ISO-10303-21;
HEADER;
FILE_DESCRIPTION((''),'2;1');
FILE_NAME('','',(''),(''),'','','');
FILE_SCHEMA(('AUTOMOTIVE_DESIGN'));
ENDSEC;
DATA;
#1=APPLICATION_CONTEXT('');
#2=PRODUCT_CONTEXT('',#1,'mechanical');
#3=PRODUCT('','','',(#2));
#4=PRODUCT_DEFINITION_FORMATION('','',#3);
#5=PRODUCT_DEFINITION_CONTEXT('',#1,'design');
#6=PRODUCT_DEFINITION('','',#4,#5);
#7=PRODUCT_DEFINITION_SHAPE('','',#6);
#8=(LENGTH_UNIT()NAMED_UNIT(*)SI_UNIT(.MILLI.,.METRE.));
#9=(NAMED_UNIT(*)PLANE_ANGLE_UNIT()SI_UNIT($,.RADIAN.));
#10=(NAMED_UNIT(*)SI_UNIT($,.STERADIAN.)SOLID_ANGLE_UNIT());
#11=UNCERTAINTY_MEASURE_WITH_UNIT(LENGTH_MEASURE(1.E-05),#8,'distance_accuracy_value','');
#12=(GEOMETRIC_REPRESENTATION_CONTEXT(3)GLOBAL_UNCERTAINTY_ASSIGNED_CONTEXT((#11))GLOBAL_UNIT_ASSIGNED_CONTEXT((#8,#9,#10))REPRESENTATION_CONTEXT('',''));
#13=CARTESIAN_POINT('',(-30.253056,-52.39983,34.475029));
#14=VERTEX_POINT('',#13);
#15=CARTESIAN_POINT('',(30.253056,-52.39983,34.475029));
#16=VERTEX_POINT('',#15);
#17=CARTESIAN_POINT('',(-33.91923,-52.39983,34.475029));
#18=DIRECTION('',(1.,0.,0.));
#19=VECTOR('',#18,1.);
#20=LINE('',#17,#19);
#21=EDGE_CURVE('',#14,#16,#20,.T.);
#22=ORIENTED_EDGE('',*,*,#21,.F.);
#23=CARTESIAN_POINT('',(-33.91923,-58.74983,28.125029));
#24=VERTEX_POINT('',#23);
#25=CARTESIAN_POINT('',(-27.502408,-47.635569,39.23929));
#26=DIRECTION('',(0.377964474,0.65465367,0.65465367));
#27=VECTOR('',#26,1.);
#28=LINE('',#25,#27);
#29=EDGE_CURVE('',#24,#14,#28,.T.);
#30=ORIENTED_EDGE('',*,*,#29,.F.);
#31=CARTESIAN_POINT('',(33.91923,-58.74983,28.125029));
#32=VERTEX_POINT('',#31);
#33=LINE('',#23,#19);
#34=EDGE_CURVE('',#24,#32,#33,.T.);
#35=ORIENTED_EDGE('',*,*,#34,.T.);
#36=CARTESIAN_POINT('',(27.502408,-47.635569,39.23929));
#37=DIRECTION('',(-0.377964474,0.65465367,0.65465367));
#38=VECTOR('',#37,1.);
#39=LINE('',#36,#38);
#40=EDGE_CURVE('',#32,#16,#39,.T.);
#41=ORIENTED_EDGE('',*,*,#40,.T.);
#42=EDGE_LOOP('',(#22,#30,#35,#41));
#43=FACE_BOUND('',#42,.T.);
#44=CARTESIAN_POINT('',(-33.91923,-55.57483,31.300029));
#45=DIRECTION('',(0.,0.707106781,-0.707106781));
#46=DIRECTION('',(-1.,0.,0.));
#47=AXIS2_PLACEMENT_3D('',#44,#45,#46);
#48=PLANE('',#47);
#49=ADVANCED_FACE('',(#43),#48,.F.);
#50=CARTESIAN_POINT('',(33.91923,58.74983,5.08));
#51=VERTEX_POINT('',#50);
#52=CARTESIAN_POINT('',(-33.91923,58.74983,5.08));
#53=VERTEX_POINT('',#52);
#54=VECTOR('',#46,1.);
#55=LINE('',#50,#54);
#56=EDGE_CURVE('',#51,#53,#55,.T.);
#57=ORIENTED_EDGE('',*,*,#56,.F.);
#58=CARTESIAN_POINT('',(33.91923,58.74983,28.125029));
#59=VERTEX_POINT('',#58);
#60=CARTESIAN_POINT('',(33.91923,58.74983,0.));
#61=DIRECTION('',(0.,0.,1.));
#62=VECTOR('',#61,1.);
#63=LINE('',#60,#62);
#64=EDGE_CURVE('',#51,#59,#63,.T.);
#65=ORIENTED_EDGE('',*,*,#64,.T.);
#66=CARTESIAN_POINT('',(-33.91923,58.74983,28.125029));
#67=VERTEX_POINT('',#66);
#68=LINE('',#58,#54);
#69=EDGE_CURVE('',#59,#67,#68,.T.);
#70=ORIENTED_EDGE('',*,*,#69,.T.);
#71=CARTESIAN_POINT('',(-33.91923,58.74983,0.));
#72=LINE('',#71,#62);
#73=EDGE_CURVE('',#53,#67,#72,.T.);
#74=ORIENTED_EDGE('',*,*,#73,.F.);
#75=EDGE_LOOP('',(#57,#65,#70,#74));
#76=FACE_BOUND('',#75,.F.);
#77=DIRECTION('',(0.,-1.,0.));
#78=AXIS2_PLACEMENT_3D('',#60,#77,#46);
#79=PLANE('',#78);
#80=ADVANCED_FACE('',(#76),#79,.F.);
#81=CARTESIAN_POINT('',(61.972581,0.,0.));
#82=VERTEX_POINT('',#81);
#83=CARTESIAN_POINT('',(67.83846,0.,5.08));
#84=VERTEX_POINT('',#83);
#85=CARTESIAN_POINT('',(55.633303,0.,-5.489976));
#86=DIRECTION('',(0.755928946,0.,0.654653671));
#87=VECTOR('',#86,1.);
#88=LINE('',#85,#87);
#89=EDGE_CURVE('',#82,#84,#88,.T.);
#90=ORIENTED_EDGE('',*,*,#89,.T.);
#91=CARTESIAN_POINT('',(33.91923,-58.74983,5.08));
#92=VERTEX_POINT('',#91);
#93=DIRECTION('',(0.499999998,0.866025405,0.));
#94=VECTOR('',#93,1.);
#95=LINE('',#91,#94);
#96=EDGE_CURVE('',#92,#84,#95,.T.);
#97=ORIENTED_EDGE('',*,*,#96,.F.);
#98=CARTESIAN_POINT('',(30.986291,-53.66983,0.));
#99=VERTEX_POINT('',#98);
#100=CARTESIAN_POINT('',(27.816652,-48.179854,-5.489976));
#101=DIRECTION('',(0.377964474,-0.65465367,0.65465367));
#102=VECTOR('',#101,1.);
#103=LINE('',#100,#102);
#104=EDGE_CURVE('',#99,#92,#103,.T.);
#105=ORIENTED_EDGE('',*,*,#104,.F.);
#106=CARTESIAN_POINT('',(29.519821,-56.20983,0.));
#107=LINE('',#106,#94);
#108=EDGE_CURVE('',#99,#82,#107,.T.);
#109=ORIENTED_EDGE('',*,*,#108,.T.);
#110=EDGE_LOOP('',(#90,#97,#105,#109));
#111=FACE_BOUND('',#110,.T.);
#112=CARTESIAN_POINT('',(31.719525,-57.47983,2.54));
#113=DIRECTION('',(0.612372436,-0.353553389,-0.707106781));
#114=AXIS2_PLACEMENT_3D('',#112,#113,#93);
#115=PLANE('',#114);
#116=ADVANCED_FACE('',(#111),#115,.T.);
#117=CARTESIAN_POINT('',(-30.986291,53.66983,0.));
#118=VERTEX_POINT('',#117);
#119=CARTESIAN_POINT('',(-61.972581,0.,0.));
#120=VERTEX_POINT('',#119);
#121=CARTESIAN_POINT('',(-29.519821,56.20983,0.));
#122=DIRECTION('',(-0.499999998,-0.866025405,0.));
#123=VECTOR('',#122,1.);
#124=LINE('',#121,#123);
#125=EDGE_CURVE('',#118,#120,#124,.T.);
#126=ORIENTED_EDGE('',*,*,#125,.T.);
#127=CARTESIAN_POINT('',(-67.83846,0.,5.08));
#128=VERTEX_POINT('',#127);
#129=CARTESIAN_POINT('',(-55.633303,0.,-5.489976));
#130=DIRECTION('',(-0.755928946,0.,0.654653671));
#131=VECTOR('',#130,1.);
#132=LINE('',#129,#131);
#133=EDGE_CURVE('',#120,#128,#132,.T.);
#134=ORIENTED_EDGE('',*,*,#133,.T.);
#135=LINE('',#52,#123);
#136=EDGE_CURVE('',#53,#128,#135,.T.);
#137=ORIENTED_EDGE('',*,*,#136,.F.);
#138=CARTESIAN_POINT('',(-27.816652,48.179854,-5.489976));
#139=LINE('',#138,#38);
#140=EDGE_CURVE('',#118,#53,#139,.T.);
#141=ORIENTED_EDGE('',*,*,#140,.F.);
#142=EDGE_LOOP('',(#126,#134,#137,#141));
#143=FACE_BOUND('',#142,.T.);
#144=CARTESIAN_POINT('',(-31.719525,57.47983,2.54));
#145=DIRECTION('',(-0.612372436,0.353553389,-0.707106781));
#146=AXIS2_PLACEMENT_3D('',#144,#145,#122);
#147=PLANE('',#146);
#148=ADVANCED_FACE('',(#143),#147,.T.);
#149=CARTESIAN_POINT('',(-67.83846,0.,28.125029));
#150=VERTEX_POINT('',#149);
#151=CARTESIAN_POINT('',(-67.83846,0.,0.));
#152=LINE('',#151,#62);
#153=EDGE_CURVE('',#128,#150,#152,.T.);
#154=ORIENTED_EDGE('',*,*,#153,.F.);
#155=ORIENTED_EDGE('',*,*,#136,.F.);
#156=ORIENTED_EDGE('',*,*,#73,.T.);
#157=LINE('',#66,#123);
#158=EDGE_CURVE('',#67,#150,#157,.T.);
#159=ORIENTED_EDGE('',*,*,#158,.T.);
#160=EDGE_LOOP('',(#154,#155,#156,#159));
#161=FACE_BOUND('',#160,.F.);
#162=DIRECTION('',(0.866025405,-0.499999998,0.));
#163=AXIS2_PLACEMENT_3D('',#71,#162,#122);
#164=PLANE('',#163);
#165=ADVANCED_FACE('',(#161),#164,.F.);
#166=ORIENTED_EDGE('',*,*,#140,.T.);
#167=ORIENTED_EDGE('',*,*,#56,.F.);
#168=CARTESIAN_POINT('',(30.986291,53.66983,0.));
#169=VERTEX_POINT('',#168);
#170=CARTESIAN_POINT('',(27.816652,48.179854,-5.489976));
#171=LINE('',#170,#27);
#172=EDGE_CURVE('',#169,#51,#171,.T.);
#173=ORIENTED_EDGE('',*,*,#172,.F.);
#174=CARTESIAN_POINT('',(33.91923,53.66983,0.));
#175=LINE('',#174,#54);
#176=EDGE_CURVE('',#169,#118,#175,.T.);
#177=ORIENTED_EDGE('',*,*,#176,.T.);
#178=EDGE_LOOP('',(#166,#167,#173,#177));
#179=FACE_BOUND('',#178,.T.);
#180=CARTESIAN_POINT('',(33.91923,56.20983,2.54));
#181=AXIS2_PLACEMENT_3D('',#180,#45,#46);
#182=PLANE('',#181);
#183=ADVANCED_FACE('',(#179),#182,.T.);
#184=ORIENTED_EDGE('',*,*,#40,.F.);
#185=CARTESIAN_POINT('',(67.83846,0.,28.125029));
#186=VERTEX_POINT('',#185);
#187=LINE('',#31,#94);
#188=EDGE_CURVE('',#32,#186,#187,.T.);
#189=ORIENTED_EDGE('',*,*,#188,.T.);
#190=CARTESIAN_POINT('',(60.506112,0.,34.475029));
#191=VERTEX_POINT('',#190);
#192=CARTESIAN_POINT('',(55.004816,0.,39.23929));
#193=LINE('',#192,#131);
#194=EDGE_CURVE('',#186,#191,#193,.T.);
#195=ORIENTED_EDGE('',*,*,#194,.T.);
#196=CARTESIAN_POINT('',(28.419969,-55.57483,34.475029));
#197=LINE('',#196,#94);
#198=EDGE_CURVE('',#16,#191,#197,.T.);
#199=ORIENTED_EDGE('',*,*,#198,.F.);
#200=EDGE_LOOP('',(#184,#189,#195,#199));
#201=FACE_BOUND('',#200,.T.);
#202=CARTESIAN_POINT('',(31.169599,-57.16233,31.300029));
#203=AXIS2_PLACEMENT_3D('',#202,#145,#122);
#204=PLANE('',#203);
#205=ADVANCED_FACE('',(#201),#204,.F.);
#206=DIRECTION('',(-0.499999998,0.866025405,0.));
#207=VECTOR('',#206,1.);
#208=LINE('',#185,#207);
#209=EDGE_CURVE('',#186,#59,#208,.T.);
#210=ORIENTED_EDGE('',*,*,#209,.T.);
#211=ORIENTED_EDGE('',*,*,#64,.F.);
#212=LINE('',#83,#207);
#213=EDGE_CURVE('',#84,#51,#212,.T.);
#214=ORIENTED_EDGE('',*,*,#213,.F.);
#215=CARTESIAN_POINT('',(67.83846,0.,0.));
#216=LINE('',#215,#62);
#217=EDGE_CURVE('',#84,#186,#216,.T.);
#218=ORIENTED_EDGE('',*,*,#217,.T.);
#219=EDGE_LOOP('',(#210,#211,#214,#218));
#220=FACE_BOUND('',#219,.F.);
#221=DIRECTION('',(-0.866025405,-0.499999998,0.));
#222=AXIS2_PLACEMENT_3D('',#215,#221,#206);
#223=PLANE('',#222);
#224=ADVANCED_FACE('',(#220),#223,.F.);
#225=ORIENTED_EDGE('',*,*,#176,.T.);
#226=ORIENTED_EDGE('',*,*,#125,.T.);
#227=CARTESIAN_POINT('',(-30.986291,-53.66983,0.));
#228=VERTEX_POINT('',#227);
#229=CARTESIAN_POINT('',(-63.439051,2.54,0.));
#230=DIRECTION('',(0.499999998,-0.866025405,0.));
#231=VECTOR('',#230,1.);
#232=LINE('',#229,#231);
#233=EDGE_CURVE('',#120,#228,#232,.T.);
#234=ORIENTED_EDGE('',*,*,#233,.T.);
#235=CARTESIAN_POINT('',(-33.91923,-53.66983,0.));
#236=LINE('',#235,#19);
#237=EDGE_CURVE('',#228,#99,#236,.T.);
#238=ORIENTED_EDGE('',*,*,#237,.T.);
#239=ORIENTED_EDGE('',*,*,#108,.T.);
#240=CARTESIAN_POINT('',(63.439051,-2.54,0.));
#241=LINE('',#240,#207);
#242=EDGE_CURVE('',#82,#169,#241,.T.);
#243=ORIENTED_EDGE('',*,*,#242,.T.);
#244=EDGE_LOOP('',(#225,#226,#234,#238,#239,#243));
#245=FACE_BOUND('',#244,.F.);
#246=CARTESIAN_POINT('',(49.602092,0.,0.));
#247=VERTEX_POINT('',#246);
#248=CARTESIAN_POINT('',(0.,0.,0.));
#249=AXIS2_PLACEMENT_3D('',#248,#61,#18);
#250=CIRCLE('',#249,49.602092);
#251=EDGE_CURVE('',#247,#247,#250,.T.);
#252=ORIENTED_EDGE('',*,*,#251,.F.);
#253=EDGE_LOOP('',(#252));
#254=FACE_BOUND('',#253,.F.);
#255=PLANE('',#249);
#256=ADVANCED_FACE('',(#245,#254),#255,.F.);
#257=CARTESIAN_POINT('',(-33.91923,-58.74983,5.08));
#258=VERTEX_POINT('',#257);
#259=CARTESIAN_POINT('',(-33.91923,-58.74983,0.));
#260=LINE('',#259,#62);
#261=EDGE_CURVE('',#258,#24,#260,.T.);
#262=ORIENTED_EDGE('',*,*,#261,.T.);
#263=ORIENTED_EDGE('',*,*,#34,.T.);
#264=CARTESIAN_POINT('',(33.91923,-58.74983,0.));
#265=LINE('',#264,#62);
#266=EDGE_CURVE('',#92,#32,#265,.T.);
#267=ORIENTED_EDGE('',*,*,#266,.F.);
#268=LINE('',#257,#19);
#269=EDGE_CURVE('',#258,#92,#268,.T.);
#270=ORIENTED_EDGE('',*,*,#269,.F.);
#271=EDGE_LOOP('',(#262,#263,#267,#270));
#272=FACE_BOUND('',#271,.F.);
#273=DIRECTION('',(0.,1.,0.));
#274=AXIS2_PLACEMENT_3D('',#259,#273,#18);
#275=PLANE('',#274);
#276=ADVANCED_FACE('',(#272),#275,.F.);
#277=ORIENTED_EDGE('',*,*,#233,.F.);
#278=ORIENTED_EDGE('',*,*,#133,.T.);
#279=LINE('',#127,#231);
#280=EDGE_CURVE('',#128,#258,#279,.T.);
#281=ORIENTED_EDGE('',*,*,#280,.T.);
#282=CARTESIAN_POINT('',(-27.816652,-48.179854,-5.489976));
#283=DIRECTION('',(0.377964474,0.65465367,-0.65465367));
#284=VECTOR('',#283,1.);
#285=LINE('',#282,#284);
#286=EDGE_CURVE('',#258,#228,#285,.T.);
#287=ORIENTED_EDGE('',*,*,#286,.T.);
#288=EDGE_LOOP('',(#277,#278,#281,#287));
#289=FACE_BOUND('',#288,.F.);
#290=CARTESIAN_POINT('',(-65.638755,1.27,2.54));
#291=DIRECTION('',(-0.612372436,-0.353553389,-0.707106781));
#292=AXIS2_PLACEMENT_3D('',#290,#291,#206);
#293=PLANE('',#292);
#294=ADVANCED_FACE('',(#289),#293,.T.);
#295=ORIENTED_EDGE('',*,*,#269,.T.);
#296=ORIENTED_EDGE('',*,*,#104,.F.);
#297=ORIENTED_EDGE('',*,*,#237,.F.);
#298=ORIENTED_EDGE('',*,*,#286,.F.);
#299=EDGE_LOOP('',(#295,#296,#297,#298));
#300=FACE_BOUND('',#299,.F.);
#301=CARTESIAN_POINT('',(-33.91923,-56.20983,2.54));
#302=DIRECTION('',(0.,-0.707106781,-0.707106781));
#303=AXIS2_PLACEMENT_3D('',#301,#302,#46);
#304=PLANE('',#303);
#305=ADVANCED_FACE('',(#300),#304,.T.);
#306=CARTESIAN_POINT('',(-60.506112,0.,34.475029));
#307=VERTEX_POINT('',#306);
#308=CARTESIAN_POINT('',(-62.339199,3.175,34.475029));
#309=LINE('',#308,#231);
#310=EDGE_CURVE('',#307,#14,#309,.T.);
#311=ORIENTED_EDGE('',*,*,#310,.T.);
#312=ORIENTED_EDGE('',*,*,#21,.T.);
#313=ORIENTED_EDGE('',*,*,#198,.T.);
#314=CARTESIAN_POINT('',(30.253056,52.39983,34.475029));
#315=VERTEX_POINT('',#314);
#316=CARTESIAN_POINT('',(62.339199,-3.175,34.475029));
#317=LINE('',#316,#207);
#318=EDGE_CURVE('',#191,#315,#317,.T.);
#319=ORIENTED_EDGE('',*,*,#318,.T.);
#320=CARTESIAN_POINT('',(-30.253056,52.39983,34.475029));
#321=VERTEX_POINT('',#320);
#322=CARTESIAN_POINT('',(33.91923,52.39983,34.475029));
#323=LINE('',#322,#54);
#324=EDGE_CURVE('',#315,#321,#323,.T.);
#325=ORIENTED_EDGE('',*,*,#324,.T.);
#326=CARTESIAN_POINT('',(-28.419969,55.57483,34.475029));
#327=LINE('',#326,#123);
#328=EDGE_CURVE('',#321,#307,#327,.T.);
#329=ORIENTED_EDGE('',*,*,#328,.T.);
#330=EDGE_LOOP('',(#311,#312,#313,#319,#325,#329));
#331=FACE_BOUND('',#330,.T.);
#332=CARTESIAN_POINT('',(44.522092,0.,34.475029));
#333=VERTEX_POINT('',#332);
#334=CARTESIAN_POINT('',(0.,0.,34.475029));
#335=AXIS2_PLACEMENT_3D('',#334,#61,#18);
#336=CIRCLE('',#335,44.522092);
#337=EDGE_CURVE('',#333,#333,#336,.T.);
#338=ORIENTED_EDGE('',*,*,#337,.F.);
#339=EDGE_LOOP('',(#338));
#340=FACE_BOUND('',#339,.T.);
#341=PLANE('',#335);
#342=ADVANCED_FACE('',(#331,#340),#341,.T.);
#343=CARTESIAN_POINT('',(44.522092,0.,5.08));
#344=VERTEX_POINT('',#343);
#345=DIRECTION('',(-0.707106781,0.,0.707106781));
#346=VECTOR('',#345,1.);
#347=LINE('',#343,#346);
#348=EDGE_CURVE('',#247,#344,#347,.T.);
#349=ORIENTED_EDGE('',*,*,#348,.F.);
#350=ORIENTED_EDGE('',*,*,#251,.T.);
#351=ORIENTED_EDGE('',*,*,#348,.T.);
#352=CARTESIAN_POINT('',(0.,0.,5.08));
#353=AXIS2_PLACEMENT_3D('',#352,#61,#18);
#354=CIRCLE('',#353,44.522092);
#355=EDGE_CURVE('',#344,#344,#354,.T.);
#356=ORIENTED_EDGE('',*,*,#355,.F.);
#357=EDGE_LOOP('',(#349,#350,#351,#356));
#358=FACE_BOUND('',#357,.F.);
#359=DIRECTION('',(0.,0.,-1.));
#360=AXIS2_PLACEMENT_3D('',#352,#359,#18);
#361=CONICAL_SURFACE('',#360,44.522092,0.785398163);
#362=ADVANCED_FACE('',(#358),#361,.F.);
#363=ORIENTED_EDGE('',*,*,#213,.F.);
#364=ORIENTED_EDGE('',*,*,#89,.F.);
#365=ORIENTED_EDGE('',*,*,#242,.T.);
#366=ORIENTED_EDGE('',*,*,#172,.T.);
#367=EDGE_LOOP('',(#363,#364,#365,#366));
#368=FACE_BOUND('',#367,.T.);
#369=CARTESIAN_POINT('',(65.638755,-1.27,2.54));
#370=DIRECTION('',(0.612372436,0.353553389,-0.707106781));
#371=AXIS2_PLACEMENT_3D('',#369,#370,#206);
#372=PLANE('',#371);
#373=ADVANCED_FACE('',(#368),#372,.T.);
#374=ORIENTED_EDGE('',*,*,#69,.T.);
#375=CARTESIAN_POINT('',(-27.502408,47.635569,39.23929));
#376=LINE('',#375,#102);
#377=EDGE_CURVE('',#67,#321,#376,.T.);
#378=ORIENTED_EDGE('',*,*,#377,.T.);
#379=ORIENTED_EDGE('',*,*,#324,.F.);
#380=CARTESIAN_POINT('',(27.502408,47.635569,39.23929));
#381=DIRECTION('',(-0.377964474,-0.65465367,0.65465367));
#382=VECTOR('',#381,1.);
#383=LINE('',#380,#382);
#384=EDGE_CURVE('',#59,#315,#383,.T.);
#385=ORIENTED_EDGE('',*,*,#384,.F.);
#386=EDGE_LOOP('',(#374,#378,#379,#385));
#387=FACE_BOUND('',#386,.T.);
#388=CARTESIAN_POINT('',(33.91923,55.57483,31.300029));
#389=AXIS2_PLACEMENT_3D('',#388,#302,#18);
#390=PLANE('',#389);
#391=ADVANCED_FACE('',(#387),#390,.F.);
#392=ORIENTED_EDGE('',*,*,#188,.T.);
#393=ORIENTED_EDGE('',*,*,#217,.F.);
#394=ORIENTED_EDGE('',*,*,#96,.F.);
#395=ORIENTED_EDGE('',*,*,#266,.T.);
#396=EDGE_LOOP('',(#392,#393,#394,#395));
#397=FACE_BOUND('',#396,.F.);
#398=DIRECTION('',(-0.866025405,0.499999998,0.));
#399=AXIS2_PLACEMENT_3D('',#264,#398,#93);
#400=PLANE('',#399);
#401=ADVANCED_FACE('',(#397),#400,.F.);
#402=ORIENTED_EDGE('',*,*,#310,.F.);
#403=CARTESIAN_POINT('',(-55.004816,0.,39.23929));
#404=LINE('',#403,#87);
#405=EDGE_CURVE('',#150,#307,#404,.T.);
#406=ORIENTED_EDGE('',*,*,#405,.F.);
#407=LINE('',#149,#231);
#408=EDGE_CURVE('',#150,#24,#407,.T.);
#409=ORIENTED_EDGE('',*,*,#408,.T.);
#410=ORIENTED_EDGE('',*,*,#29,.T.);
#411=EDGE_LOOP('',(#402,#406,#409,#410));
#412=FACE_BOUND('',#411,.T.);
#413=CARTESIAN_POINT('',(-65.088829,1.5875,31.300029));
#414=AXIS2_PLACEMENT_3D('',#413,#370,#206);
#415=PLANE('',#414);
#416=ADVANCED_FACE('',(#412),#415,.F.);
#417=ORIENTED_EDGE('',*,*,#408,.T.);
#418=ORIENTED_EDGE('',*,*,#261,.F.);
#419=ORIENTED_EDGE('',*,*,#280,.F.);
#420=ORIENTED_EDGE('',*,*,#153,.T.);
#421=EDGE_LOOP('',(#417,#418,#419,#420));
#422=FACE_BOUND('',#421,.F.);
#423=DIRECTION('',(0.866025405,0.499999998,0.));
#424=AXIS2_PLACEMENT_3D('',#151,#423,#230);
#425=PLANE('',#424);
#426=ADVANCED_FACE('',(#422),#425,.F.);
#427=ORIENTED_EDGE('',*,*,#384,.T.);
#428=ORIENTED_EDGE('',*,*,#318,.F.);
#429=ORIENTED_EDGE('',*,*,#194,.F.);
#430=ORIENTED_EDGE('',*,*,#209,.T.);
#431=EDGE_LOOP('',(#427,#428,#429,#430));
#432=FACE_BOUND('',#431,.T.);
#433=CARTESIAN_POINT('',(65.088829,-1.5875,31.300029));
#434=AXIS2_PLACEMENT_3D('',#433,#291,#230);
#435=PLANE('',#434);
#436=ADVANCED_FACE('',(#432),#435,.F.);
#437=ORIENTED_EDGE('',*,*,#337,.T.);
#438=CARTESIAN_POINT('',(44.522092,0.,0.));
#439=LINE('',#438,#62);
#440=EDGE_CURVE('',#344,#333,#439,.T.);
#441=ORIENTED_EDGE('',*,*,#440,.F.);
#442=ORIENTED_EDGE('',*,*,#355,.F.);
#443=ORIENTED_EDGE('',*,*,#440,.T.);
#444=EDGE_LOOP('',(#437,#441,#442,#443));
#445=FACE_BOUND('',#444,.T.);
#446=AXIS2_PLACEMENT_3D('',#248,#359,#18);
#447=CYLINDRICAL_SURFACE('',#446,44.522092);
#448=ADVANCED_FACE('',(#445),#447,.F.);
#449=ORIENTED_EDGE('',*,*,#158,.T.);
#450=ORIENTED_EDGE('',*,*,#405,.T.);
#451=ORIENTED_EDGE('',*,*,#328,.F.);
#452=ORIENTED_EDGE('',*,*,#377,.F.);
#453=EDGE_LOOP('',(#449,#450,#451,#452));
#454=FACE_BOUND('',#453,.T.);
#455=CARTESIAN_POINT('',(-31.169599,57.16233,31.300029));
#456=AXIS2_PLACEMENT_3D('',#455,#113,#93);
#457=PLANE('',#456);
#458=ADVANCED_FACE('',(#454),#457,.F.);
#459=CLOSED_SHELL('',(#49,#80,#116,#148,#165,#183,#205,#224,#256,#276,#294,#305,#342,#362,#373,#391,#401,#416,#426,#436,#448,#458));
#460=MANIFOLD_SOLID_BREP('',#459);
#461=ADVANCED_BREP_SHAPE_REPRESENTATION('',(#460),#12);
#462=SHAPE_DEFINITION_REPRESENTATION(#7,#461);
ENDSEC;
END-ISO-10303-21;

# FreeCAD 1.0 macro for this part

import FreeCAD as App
import Part
import Sketcher
from FreeCAD import Vector
Q = App.Units.Quantity


def edges_at(feature, points):
    """Names of the edges that pass closest to the given points."""
    edges = feature.Shape.Edges
    near = lambda p: min(range(len(edges)), key=lambda i: edges[i].distToShape(Part.Vertex(*p))[0])
    return sorted({f"Edge{near(p) + 1}" for p in points})

doc = App.newDocument("Part")
body = doc.addObject("PartDesign::Body", "Body")

# Sketch on XY plane
sketch1 = body.newObject("Sketcher::SketchObject", "Sketch")
sketch1.AttachmentSupport = (doc.getObject("XY_Plane"), [""])
sketch1.MapMode = "FlatFace"
sketch1.addGeometry([
    Part.LineSegment(Vector(-33.91923, -58.74983, 0), Vector(33.91923, -58.74983, 0)),  # 0
    Part.LineSegment(Vector(33.91923, -58.74983, 0), Vector(67.83846, 0, 0)),  # 1
    Part.LineSegment(Vector(67.83846, 0, 0), Vector(33.91923, 58.74983, 0)),  # 2
    Part.LineSegment(Vector(33.91923, 58.74983, 0), Vector(-33.91923, 58.74983, 0)),  # 3
    Part.LineSegment(Vector(-33.91923, 58.74983, 0), Vector(-67.83846, 0, 0)),  # 4
    Part.LineSegment(Vector(-67.83846, 0, 0), Vector(-33.91923, -58.74983, 0)),  # 5
    Part.Circle(Vector(0, 0, 0), Vector(0, 0, 1), 44.522092),  # 6
], False)
sketch1.addConstraint([
    Sketcher.Constraint("Coincident", 0, 2, 1, 1),
    Sketcher.Constraint("Coincident", 1, 2, 2, 1),
    Sketcher.Constraint("Coincident", 2, 2, 3, 1),
    Sketcher.Constraint("Coincident", 3, 2, 4, 1),
    Sketcher.Constraint("Coincident", 4, 2, 5, 1),
    Sketcher.Constraint("Coincident", 5, 2, 0, 1),
    Sketcher.Constraint("Horizontal", 0),
    Sketcher.Constraint("Horizontal", 3),
    Sketcher.Constraint("Coincident", 6, 3, -1, 1),
    Sketcher.Constraint("Symmetric", 0, 2, 3, 2, -1, 1),
    Sketcher.Constraint("Symmetric", 1, 2, 4, 2, -1, 1),
    Sketcher.Constraint("PointOnObject", 1, 2, -1),
    Sketcher.Constraint("Parallel", 2, 5),
    Sketcher.Constraint("Vertical", 0, 2, 2, 2),
    Sketcher.Constraint("Angle", 1, Q("60 deg")),
    Sketcher.Constraint("Diameter", 6, 89.044184),
    Sketcher.Constraint("DistanceX", 0, 1, 0, 2, 67.83846),
    Sketcher.Constraint("Distance", 1, 67.83846),
])
pad1 = body.newObject("PartDesign::Pad", "Pad")
pad1.Profile = sketch1
pad1.Length = 34.475029
doc.recompute()

chamfer = body.newObject("PartDesign::Chamfer", "Chamfer")
chamfer.Base = (pad1, edges_at(pad1, [
    (0, 58.75, 34.475),
    (-50.879, -29.375, 34.475),
    (50.879, 29.375, 34.475),
    (0, -58.75, 34.475),
    (50.879, -29.375, 34.475),
    (-50.879, 29.375, 34.475),
]))
chamfer.Size = Q("0.25 in")
doc.recompute()

chamfer2 = body.newObject("PartDesign::Chamfer", "Chamfer001")
chamfer2.Base = (chamfer, edges_at(chamfer, [
    (50.879, -29.375, 0),
    (50.879, 29.375, 0),
    (0, 58.75, 0),
    (-50.879, 29.375, 0),
    (-50.879, -29.375, 0),
    (0, -58.75, 0),
    (-44.522, 0, 0),
]))
chamfer2.Size = Q("0.2 in")

doc.recompute()
